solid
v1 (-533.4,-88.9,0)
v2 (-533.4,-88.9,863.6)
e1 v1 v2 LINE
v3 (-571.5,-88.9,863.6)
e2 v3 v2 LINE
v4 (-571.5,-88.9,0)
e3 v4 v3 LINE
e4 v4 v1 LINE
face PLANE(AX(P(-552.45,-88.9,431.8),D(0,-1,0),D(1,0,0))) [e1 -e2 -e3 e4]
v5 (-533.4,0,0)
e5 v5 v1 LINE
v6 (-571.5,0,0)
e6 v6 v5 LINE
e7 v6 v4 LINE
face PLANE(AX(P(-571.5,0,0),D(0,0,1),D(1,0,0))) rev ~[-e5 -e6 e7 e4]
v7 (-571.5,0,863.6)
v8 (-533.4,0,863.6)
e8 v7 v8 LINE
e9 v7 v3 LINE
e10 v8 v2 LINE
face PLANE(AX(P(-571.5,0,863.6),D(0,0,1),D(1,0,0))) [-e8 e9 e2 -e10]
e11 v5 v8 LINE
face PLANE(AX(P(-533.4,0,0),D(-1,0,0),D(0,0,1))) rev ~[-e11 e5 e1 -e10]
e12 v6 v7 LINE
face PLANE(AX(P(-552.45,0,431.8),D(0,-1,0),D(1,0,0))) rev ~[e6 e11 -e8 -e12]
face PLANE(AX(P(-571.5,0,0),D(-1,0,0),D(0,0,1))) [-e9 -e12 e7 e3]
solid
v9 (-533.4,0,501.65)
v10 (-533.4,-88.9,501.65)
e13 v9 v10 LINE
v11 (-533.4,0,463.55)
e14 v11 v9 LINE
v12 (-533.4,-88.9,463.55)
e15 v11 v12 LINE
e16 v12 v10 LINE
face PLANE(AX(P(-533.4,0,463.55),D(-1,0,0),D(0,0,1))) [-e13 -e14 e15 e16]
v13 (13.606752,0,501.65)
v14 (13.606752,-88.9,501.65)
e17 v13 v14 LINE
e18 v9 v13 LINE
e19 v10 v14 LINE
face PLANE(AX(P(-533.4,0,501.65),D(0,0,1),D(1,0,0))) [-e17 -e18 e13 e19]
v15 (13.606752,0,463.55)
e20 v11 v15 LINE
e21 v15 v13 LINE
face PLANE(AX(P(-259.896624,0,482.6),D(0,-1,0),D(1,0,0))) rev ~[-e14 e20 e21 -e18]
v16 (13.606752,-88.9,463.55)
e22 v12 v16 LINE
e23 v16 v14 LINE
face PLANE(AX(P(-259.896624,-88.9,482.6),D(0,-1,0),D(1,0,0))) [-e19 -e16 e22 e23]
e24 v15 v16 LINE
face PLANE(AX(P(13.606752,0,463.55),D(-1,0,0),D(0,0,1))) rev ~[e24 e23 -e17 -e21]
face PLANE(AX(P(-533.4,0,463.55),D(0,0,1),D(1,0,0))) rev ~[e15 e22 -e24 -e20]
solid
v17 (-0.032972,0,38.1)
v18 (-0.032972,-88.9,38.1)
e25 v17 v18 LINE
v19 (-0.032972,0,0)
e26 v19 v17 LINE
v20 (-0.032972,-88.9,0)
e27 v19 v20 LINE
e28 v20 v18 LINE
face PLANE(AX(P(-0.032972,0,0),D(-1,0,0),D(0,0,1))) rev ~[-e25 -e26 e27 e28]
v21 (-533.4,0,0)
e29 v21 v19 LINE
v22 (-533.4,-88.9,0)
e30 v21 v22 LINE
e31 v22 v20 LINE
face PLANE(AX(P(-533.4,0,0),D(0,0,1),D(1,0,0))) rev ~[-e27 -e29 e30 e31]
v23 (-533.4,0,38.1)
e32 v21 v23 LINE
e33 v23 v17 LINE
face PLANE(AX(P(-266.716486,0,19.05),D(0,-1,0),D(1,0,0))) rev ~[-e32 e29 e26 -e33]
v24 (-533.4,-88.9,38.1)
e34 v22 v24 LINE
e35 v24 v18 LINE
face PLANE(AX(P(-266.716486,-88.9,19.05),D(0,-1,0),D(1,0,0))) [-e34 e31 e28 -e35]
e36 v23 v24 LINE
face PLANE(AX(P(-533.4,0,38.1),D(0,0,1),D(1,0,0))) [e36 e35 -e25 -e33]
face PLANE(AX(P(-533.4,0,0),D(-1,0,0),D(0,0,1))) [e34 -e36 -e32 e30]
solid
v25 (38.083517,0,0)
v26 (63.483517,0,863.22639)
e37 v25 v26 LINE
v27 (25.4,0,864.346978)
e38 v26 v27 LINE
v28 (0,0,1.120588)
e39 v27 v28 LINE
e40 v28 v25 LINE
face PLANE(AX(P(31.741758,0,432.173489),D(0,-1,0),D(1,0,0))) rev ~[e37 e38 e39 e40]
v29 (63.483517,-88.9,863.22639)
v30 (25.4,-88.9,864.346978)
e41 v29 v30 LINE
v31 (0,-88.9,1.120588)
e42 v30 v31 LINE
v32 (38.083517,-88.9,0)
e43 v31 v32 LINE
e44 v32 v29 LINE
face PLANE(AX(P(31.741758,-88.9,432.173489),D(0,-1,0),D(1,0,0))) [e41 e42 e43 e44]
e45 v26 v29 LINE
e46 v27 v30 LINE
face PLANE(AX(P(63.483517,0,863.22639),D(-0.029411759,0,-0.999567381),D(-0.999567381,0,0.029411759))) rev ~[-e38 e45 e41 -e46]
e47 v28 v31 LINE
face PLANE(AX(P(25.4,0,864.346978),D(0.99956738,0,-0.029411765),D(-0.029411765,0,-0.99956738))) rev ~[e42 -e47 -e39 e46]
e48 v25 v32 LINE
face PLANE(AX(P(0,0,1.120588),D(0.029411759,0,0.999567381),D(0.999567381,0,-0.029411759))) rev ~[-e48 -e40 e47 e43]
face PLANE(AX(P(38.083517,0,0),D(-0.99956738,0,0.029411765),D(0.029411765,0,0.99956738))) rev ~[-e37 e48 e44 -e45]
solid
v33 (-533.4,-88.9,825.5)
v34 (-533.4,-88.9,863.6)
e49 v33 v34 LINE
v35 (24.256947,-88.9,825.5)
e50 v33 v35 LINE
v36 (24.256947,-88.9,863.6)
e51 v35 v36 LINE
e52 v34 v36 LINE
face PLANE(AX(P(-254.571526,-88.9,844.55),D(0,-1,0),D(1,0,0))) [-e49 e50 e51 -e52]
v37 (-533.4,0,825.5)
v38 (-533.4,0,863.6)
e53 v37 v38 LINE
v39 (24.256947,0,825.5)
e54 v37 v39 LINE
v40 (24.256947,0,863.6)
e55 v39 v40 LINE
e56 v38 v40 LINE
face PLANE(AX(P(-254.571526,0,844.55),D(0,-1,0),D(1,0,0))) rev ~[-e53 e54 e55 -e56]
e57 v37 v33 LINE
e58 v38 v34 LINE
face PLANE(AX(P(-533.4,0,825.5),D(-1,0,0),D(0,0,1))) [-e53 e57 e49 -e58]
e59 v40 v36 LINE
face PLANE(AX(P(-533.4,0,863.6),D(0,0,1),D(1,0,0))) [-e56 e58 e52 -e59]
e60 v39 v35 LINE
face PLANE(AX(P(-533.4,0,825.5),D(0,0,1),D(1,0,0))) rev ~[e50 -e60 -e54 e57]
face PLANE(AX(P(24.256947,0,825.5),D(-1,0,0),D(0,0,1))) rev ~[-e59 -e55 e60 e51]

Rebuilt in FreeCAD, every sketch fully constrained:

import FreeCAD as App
import Part
import Sketcher
Q = App.Units.Quantity

doc = App.newDocument("Part")
body = doc.addObject("PartDesign::Body", "Body")
body.AllowCompound = True

# Sketch on XZ plane
sketch1 = body.newObject("Sketcher::SketchObject", "Sketch")
sketch1.AttachmentSupport = (doc.getObject("XZ_Plane"), [""])
sketch1.MapMode = "FlatFace"
sketch1.addGeometry(Part.LineSegment(App.Vector(-572, 864, 0), App.Vector(-572, 0, 0)), False)
sketch1.addGeometry(Part.LineSegment(App.Vector(-572, 0, 0), App.Vector(-533, 0, 0)), False)
sketch1.addGeometry(Part.LineSegment(App.Vector(-533, 0, 0), App.Vector(-533, 864, 0)), False)
sketch1.addGeometry(Part.LineSegment(App.Vector(-533, 864, 0), App.Vector(-572, 864, 0)), False)
sketch1.addGeometry(Part.LineSegment(App.Vector(63, 863, 0), App.Vector(25, 864, 0)), False)
sketch1.addGeometry(Part.LineSegment(App.Vector(25, 864, 0), App.Vector(0, 1, 0)), False)
sketch1.addGeometry(Part.LineSegment(App.Vector(0, 1, 0), App.Vector(38, 0, 0)), False)
sketch1.addGeometry(Part.LineSegment(App.Vector(38, 0, 0), App.Vector(63, 863, 0)), False)
sketch1.addConstraint(Sketcher.Constraint("Coincident", 0, 2, 1, 1))
sketch1.addConstraint(Sketcher.Constraint("Coincident", 1, 2, 2, 1))
sketch1.addConstraint(Sketcher.Constraint("Coincident", 2, 2, 3, 1))
sketch1.addConstraint(Sketcher.Constraint("Coincident", 3, 2, 0, 1))
sketch1.addConstraint(Sketcher.Constraint("Coincident", 4, 2, 5, 1))
sketch1.addConstraint(Sketcher.Constraint("Coincident", 5, 2, 6, 1))
sketch1.addConstraint(Sketcher.Constraint("Coincident", 6, 2, 7, 1))
sketch1.addConstraint(Sketcher.Constraint("Coincident", 7, 2, 4, 1))
sketch1.addConstraint(Sketcher.Constraint("Vertical", 0))
sketch1.addConstraint(Sketcher.Constraint("Horizontal", 1))
sketch1.addConstraint(Sketcher.Constraint("Vertical", 2))
sketch1.addConstraint(Sketcher.Constraint("Horizontal", 3))
sketch1.addConstraint(Sketcher.Constraint("PointOnObject", 0, 2, -1))
sketch1.addConstraint(Sketcher.Constraint("PointOnObject", 5, 2, -2))
sketch1.addConstraint(Sketcher.Constraint("PointOnObject", 6, 2, -1))
sketch1.addConstraint(Sketcher.Constraint("Perpendicular", 4, 5))
sketch1.addConstraint(Sketcher.Constraint("Perpendicular", 5, 6))
sketch1.addConstraint(Sketcher.Constraint("Perpendicular", 6, 7))
sketch1.addConstraint(Sketcher.Constraint("DistanceY", 0, 2, 0, 1, Q("34 in")))
sketch1.addConstraint(Sketcher.Constraint("Distance", 5, Q("34 in")))
sketch1.addConstraint(Sketcher.Constraint("DistanceX", 1, 1, 1, 2, Q("1.5 in")))
sketch1.addConstraint(Sketcher.Constraint("DistanceX", 1, 2, -1, 1, Q("21 in")))
sketch1.addConstraint(Sketcher.Constraint("DistanceX", -1, 1, 4, 2, Q("1 in")))
sketch1.addConstraint(Sketcher.Constraint("Distance", 4, Q("1.5 in")))
pad1 = body.newObject("PartDesign::Pad", "Pad")
pad1.Profile = sketch1
pad1.Length = Q("3.5 in")
body2 = doc.addObject("PartDesign::Body", "Body001")
body2.AllowCompound = True

# Sketch on XZ plane
sketch2 = body2.newObject("Sketcher::SketchObject", "Sketch001")
sketch2.AttachmentSupport = (doc.getObject("XZ_Plane001"), [""])
sketch2.MapMode = "FlatFace"
sketch2.addGeometry(Part.LineSegment(App.Vector(-533, 864, 0), App.Vector(-533, 826, 0)), False)
sketch2.addGeometry(Part.LineSegment(App.Vector(-533, 826, 0), App.Vector(24, 826, 0)), False)
sketch2.addGeometry(Part.LineSegment(App.Vector(24, 826, 0), App.Vector(24, 864, 0)), False)
sketch2.addGeometry(Part.LineSegment(App.Vector(24, 864, 0), App.Vector(-533, 864, 0)), False)
sketch2.addGeometry(Part.LineSegment(App.Vector(-533, 38, 0), App.Vector(-533, 0, 0)), False)
sketch2.addGeometry(Part.LineSegment(App.Vector(-533, 0, 0), App.Vector(0, 0, 0)), False)
sketch2.addGeometry(Part.LineSegment(App.Vector(0, 0, 0), App.Vector(0, 38, 0)), False)
sketch2.addGeometry(Part.LineSegment(App.Vector(0, 38, 0), App.Vector(-533, 38, 0)), False)
sketch2.addGeometry(Part.LineSegment(App.Vector(-533, 502, 0), App.Vector(-533, 464, 0)), False)
sketch2.addGeometry(Part.LineSegment(App.Vector(-533, 464, 0), App.Vector(14, 464, 0)), False)
sketch2.addGeometry(Part.LineSegment(App.Vector(14, 464, 0), App.Vector(14, 502, 0)), False)
sketch2.addGeometry(Part.LineSegment(App.Vector(14, 502, 0), App.Vector(-533, 502, 0)), False)
sketch2.addConstraint(Sketcher.Constraint("Coincident", 0, 2, 1, 1))
sketch2.addConstraint(Sketcher.Constraint("Coincident", 1, 2, 2, 1))
sketch2.addConstraint(Sketcher.Constraint("Coincident", 2, 2, 3, 1))
sketch2.addConstraint(Sketcher.Constraint("Coincident", 3, 2, 0, 1))
sketch2.addConstraint(Sketcher.Constraint("Coincident", 4, 2, 5, 1))
sketch2.addConstraint(Sketcher.Constraint("Coincident", 5, 2, 6, 1))
sketch2.addConstraint(Sketcher.Constraint("Coincident", 6, 2, 7, 1))
sketch2.addConstraint(Sketcher.Constraint("Coincident", 7, 2, 4, 1))
sketch2.addConstraint(Sketcher.Constraint("Coincident", 8, 2, 9, 1))
sketch2.addConstraint(Sketcher.Constraint("Coincident", 9, 2, 10, 1))
sketch2.addConstraint(Sketcher.Constraint("Coincident", 10, 2, 11, 1))
sketch2.addConstraint(Sketcher.Constraint("Coincident", 11, 2, 8, 1))
sketch2.addConstraint(Sketcher.Constraint("Vertical", 0))
sketch2.addConstraint(Sketcher.Constraint("Horizontal", 1))
sketch2.addConstraint(Sketcher.Constraint("Vertical", 2))
sketch2.addConstraint(Sketcher.Constraint("Horizontal", 3))
sketch2.addConstraint(Sketcher.Constraint("Vertical", 4))
sketch2.addConstraint(Sketcher.Constraint("Horizontal", 5))
sketch2.addConstraint(Sketcher.Constraint("Vertical", 6))
sketch2.addConstraint(Sketcher.Constraint("Horizontal", 7))
sketch2.addConstraint(Sketcher.Constraint("Vertical", 8))
sketch2.addConstraint(Sketcher.Constraint("Horizontal", 9))
sketch2.addConstraint(Sketcher.Constraint("Vertical", 10))
sketch2.addConstraint(Sketcher.Constraint("Horizontal", 11))
sketch2.addConstraint(Sketcher.Constraint("PointOnObject", 4, 2, -1))
sketch2.addConstraint(Sketcher.Constraint("Vertical", 3, 2, 4, 2))
sketch2.addConstraint(Sketcher.Constraint("Vertical", 7, 2, 8, 2))
sketch2.addConstraint(Sketcher.Constraint("Equal", 2, 4))
sketch2.addConstraint(Sketcher.Constraint("Equal", 6, 8))
sketch2.addConstraint(Sketcher.Constraint("DistanceY", 0, 2, 0, 1, Q("1.5 in")))
sketch2.addConstraint(Sketcher.Constraint("DistanceX", 0, 2, -1, 1, Q("21 in")))
sketch2.addConstraint(Sketcher.Constraint("DistanceY", -1, 1, 2, 2, Q("34 in")))
sketch2.addConstraint(Sketcher.Constraint("DistanceY", -1, 1, 8, 2, Q("18.25 in")))
sketch2.addConstraint(Sketcher.Constraint("DistanceX", 9, 1, 9, 2, 547.006752))
sketch2.addConstraint(Sketcher.Constraint("DistanceX", 1, 1, 1, 2, 557.656947))
sketch2.addConstraint(Sketcher.Constraint("DistanceX", 5, 1, 5, 2, 533.367027))
pad2 = body2.newObject("PartDesign::Pad", "Pad001")
pad2.Profile = sketch2
pad2.Length = Q("3.5 in")

doc.recompute()
